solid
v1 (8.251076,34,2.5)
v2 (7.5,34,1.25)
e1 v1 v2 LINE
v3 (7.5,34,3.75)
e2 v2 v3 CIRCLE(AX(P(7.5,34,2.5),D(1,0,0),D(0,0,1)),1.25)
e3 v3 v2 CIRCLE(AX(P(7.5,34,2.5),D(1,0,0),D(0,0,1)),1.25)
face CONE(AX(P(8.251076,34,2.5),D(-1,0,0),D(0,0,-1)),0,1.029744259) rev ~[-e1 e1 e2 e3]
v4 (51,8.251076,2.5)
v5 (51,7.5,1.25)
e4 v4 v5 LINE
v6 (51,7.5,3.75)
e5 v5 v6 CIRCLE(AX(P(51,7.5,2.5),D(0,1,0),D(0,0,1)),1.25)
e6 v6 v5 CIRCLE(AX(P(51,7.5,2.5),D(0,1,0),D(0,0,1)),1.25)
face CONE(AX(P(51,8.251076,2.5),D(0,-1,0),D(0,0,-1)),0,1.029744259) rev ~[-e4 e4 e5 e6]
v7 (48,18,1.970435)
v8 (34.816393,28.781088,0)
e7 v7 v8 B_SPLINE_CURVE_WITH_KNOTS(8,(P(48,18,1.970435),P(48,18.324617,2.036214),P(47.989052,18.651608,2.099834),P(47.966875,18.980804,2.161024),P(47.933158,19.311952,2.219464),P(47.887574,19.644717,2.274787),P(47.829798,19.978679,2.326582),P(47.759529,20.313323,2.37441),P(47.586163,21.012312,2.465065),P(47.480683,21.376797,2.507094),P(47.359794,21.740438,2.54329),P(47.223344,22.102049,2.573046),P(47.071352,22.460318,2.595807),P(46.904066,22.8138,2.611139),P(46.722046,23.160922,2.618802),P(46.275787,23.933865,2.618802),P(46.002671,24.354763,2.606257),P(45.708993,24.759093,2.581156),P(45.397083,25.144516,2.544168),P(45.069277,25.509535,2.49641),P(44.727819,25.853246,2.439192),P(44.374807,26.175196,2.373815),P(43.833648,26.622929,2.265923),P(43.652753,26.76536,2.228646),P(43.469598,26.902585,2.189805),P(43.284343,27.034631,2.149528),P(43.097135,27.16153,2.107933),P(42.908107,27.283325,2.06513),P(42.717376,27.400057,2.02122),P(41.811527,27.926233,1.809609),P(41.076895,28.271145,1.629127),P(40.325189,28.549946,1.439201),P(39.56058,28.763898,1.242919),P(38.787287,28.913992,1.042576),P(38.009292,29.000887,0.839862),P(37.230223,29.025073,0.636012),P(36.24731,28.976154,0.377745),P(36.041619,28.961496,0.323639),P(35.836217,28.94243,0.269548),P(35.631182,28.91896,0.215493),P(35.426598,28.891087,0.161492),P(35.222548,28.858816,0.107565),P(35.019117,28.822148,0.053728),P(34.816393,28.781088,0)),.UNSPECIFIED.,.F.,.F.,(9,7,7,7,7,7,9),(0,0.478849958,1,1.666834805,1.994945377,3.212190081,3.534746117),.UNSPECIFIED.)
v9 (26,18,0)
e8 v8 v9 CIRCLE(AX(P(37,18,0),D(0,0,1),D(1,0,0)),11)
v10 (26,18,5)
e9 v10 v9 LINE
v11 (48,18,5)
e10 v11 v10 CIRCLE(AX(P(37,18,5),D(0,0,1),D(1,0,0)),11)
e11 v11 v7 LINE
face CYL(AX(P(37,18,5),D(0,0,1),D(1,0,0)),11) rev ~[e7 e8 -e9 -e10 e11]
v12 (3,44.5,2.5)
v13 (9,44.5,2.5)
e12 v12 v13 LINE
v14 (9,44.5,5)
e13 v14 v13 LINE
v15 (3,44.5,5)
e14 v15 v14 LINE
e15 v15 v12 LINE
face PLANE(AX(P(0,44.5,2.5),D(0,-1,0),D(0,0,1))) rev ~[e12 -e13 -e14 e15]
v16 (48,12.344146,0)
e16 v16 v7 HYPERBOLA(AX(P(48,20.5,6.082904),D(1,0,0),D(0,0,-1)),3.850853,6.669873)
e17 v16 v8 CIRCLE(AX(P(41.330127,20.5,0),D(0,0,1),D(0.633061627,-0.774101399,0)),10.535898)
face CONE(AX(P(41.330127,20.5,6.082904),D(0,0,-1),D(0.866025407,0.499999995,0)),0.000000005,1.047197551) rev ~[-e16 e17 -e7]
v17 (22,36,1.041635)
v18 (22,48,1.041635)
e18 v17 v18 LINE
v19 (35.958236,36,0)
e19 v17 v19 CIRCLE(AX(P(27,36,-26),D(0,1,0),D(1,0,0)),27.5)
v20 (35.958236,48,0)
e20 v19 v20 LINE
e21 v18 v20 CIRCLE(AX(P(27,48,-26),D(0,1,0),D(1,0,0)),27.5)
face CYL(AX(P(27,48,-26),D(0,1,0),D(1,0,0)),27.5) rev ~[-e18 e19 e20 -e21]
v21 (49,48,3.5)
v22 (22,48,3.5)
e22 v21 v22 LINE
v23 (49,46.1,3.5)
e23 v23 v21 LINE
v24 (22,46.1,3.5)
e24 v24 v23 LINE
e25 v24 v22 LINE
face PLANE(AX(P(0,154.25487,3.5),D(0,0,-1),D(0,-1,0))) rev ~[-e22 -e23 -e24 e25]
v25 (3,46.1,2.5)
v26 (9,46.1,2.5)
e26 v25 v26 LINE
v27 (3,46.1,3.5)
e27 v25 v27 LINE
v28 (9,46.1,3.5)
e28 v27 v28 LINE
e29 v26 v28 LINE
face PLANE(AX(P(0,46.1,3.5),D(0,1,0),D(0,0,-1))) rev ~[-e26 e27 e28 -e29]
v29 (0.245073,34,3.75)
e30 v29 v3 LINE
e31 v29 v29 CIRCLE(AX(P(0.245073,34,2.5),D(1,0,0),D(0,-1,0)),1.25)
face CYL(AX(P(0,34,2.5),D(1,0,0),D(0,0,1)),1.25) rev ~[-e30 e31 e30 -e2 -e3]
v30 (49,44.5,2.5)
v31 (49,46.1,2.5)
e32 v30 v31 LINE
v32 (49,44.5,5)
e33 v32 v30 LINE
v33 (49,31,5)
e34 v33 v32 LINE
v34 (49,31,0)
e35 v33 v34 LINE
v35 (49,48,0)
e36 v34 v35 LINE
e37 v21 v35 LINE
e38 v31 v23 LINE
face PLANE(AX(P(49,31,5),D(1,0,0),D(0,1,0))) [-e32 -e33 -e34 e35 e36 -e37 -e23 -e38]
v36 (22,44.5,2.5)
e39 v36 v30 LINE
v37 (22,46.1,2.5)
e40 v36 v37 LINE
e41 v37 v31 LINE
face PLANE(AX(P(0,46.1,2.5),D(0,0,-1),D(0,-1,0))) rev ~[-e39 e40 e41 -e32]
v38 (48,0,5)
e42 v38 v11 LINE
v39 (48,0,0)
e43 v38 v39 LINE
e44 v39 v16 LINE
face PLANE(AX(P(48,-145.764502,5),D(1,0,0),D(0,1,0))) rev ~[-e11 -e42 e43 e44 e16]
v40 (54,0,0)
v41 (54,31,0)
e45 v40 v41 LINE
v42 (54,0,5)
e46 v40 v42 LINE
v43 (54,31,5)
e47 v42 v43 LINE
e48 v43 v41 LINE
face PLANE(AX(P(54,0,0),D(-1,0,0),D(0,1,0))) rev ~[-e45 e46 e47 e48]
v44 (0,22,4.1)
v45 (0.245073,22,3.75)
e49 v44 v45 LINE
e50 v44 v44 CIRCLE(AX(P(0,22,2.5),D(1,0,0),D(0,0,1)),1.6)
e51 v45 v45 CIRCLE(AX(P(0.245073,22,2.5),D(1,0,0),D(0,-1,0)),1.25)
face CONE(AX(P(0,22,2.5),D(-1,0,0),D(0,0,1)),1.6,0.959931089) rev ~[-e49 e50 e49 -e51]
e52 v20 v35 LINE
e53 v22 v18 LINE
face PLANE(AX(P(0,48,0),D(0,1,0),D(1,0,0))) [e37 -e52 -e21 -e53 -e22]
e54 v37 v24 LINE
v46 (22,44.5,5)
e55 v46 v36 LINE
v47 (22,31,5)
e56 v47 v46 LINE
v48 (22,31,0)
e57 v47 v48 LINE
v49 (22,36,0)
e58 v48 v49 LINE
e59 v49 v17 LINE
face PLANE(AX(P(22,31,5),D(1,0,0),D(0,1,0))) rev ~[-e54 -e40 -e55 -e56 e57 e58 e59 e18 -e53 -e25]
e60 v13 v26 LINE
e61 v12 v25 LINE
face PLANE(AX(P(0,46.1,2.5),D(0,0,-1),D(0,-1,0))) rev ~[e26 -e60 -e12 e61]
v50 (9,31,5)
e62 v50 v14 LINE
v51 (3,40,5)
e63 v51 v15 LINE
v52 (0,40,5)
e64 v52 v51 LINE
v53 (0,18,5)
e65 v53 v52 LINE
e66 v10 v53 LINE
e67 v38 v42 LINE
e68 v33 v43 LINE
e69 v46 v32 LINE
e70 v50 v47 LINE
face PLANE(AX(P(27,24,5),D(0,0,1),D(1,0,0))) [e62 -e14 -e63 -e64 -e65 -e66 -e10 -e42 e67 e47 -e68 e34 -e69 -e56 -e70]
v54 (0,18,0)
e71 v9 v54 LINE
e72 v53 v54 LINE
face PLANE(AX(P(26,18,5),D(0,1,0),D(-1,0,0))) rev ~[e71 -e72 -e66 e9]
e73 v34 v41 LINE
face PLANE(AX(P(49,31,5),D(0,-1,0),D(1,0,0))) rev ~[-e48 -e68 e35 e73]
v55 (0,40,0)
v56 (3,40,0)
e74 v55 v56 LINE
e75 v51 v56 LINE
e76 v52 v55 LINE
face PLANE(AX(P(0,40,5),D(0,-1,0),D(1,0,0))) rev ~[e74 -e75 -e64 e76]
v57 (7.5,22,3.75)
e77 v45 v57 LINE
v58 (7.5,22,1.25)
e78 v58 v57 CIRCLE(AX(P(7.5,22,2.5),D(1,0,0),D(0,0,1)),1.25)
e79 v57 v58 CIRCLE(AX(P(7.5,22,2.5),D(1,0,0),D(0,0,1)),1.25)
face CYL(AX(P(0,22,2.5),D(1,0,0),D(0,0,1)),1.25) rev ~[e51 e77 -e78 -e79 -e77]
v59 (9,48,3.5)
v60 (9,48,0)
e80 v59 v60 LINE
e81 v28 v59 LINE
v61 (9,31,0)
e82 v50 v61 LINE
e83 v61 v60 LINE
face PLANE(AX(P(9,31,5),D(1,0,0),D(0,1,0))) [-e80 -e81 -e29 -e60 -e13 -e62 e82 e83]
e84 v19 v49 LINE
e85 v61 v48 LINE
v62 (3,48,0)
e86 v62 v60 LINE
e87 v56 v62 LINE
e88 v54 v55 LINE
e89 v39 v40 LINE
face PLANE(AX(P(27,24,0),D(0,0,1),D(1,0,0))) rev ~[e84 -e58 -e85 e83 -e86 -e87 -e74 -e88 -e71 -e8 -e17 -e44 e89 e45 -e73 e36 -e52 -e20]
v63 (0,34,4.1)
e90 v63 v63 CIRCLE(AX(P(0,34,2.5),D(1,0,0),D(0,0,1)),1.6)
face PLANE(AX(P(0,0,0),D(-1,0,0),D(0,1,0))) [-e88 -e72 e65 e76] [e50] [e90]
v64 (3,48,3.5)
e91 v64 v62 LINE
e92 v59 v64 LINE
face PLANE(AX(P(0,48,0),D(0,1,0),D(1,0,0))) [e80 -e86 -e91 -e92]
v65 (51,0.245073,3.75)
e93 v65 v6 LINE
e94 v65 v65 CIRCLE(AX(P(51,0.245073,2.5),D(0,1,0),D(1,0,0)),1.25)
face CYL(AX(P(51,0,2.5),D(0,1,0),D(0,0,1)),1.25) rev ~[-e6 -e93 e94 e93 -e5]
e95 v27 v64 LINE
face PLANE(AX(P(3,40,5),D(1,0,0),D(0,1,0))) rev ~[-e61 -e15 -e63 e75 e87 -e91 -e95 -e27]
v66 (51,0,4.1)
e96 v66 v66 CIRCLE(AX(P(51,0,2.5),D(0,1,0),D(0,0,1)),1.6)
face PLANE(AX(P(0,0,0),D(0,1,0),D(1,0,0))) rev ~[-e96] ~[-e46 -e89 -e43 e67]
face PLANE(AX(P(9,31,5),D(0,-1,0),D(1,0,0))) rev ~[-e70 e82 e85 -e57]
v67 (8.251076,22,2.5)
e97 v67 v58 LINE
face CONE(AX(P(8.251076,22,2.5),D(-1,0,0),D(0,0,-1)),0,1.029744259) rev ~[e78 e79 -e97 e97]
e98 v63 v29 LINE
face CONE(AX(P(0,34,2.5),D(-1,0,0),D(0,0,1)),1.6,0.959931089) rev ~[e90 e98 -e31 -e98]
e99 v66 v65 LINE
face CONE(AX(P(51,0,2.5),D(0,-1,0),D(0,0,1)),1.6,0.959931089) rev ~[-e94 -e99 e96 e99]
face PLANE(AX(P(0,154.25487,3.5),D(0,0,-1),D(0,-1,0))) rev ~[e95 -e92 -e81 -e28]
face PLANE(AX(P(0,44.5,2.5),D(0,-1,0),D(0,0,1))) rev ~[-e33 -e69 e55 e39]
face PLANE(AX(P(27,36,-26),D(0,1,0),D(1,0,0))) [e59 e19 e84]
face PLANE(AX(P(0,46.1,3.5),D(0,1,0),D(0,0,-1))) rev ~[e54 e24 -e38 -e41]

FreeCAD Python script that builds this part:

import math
import FreeCAD as App
import Part
import Sketcher
from FreeCAD import Vector
Q = App.Units.Quantity


def add_polygon(sketch, points):
    """Adds a closed chain of lines whose ends are joined by coincident constraints."""
    first, n = sketch.GeometryCount, len(points)
    for a, b in zip(points, points[1:] + points[:1]):
        sketch.addGeometry(Part.LineSegment(App.Vector(*a, 0), App.Vector(*b, 0)), False)
    for i in range(n):
        sketch.addConstraint(Sketcher.Constraint("Coincident", first + i, 2, first + (i + 1) % n, 1))

doc = App.newDocument("Part")
body = doc.addObject("PartDesign::Body", "Body")

# Sketch on XY plane
sketch1 = body.newObject("Sketcher::SketchObject", "Sketch")
sketch1.AttachmentSupport = (doc.getObject("XY_Plane"), [""])
sketch1.MapMode = "FlatFace"
add_polygon(sketch1, [(0, 48), (0, 0), (54, 0), (54, 48)])  # lines 0-3
sketch1.addConstraint([
    Sketcher.Constraint("Vertical", 0),
    Sketcher.Constraint("Horizontal", 1),
    Sketcher.Constraint("Vertical", 2),
    Sketcher.Constraint("Horizontal", 3),
    Sketcher.Constraint("Coincident", 0, 2, -1, 1),
    Sketcher.Constraint("DistanceX", 1, 1, 1, 2, 54.0),
    Sketcher.Constraint("DistanceY", 0, 2, 0, 1, 48.0),
])
pad1 = body.newObject("PartDesign::Pad", "Pad")
pad1.Profile = sketch1
pad1.Length = 5

# Sketch on XY plane
sketch2 = body.newObject("Sketcher::SketchObject", "Sketch001")
sketch2.AttachmentSupport = (doc.getObject("XY_Plane"), [""])
sketch2.MapMode = "FlatFace"
sketch2.AttachmentOffset = App.Placement(Vector(0, 0, 5), App.Rotation())
add_polygon(sketch2, [(0, 48), (0, 40), (3, 40), (3, 48)])  # lines 0-3
add_polygon(sketch2, [(9, 48), (9, 31), (22, 31), (22, 48)])  # lines 4-7
add_polygon(sketch2, [(49, 48), (49, 31), (54, 31), (54, 48)])  # lines 8-11
sketch2.addConstraint([
    Sketcher.Constraint("Vertical", 0),
    Sketcher.Constraint("Horizontal", 1),
    Sketcher.Constraint("Vertical", 2),
    Sketcher.Constraint("Horizontal", 3),
    Sketcher.Constraint("Vertical", 4),
    Sketcher.Constraint("Horizontal", 5),
    Sketcher.Constraint("Vertical", 6),
    Sketcher.Constraint("Horizontal", 7),
    Sketcher.Constraint("Vertical", 8),
    Sketcher.Constraint("Horizontal", 9),
    Sketcher.Constraint("Vertical", 10),
    Sketcher.Constraint("Horizontal", 11),
    Sketcher.Constraint("PointOnObject", 0, 2, -2),
    Sketcher.Constraint("Horizontal", 3, 2, 6, 2),
    Sketcher.Constraint("Horizontal", 5, 2, 8, 2),
    Sketcher.Constraint("Horizontal", 7, 2, 10, 2),
    Sketcher.Constraint("DistanceX", 1, 1, 1, 2, 3.0),
    Sketcher.Constraint("DistanceX", 5, 1, 5, 2, 13.0),
    Sketcher.Constraint("DistanceX", 9, 1, 9, 2, 5.0),
    Sketcher.Constraint("DistanceY", 0, 2, 0, 1, 8.0),
    Sketcher.Constraint("DistanceY", 4, 2, 4, 1, 17.0),
    Sketcher.Constraint("DistanceY", -1, 1, 0, 2, 40.0),
    Sketcher.Constraint("DistanceX", -1, 1, 4, 2, 9.0),
    Sketcher.Constraint("DistanceX", -1, 1, 8, 2, 49.0),
])
pocket1 = body.newObject("PartDesign::Pocket", "Pocket")
pocket1.Profile = sketch2
pocket1.Type = "ThroughAll"

# Sketch on YZ plane
sketch3 = body.newObject("Sketcher::SketchObject", "Sketch002")
sketch3.AttachmentSupport = (doc.getObject("YZ_Plane"), [""])
sketch3.MapMode = "FlatFace"
add_polygon(sketch3, [(154.3, 3.5), (46.1, 3.5), (46.1, 2.5), (44.5, 2.5), (44.5, 111.3), (193.4, 262.9), (303.1, 155.1)])  # lines 0-6
sketch3.addConstraint([
    Sketcher.Constraint("Horizontal", 0),
    Sketcher.Constraint("Vertical", 1),
    Sketcher.Constraint("Horizontal", 2),
    Sketcher.Constraint("Vertical", 3),
    Sketcher.Constraint("Perpendicular", 4, 5),
    Sketcher.Constraint("Perpendicular", 5, 6),
    Sketcher.Constraint("Equal", 4, 6),
    Sketcher.Constraint("DistanceY", 1, 2, 1, 1, 1.0),
    Sketcher.Constraint("DistanceX", 2, 2, 2, 1, 1.6),
    Sketcher.Constraint("DistanceX", -1, 1, 0, 2, 46.1),
    Sketcher.Constraint("DistanceY", -1, 1, 0, 2, 3.5),
    Sketcher.Constraint("DistanceX", 0, 2, 0, 1, 108.15487),
    Sketcher.Constraint("DistanceY", 3, 1, 3, 2, 108.75487),
    Sketcher.Constraint("Distance", 4, 212.50974),
])
pocket2 = body.newObject("PartDesign::Pocket", "Pocket001")
pocket2.Profile = sketch3
pocket2.Type = "ThroughAll"
pocket2.Reversed = True

# Sketch on XY plane
sketch4 = body.newObject("Sketcher::SketchObject", "Sketch003")
sketch4.AttachmentSupport = (doc.getObject("XY_Plane"), [""])
sketch4.MapMode = "FlatFace"
sketch4.AttachmentOffset = App.Placement(Vector(0, 0, 5), App.Rotation())
sketch4.addGeometry([
    Part.LineSegment(Vector(48, -146, 0), Vector(48, 18, 0)),  # 0
    Part.ArcOfCircle(Part.Circle(Vector(37, 18, 0), Vector(0, 0, 1), 11), math.radians(0), math.radians(180)),  # 1
    Part.LineSegment(Vector(26, 18, 0), Vector(-146, 18, 0)),  # 2
    Part.LineSegment(Vector(-146, 18, 0), Vector(-334, -205, 0)),  # 3
    Part.LineSegment(Vector(-334, -205, 0), Vector(-140, -368, 0)),  # 4
    Part.LineSegment(Vector(-140, -368, 0), Vector(48, -146, 0)),  # 5
], False)
sketch4.addConstraint([
    Sketcher.Constraint("Tangent", 0, 2, 1, 1),
    Sketcher.Constraint("Coincident", 1, 2, 2, 1),
    Sketcher.Constraint("Coincident", 2, 2, 3, 1),
    Sketcher.Constraint("Coincident", 3, 2, 4, 1),
    Sketcher.Constraint("Coincident", 4, 2, 5, 1),
    Sketcher.Constraint("Coincident", 5, 2, 0, 1),
    Sketcher.Constraint("Vertical", 0),
    Sketcher.Constraint("Horizontal", 2),
    Sketcher.Constraint("Perpendicular", 3, 4),
    Sketcher.Constraint("Perpendicular", 4, 5),
    Sketcher.Constraint("Horizontal", 0, 2, 1, 2),
    Sketcher.Constraint("Equal", 3, 5),
    Sketcher.Constraint("Radius", 1, 11.0),
    Sketcher.Constraint("DistanceX", -1, 1, 1, 3, 37.0),
    Sketcher.Constraint("DistanceY", -1, 1, 1, 3, 18.0),
    Sketcher.Constraint("DistanceX", 2, 2, 2, 1, 171.764502),
    Sketcher.Constraint("DistanceY", 0, 1, 0, 2, 163.764502),
    Sketcher.Constraint("DistanceY", 3, 2, -1, 1, 204.65691),
])
pocket3 = body.newObject("PartDesign::Pocket", "Pocket002")
pocket3.Profile = sketch4
pocket3.Type = "ThroughAll"

# Sketch on XZ plane
sketch5 = body.newObject("Sketcher::SketchObject", "Sketch004")
sketch5.AttachmentSupport = (doc.getObject("XZ_Plane"), [""])
sketch5.MapMode = "FlatFace"
sketch5.AttachmentOffset = App.Placement(Vector(0, 0, -48), App.Rotation())
sketch5.addGeometry(Part.Circle(Vector(27, -26, 0), Vector(0, 0, 1), 28), False)
sketch5.addConstraint([
    Sketcher.Constraint("Diameter", 0, 55.0),
    Sketcher.Constraint("DistanceX", -1, 1, 0, 3, 27.0),
    Sketcher.Constraint("DistanceY", 0, 3, -1, 1, 26.0),
])
pocket4 = body.newObject("PartDesign::Pocket", "Pocket003")
pocket4.Profile = sketch5
pocket4.Length = 12
pocket4.Reversed = True

# Sketch on YZ plane
sketch6 = body.newObject("Sketcher::SketchObject", "Sketch005")
sketch6.AttachmentSupport = (doc.getObject("YZ_Plane"), [""])
sketch6.MapMode = "FlatFace"
sketch6.addGeometry([
    Part.Circle(Vector(22, 2.5, 0), Vector(0, 0, 1), 1.2),
    Part.Circle(Vector(34, 2.5, 0), Vector(0, 0, 1), 1.2),
], False)
sketch6.addConstraint([
    Sketcher.Constraint("Equal", 0, 1),
    Sketcher.Constraint("Horizontal", 0, 3, 1, 3),
    Sketcher.Constraint("Diameter", 0, 2.5),
    Sketcher.Constraint("DistanceX", -1, 1, 0, 3, 22.0),
    Sketcher.Constraint("DistanceX", -1, 1, 1, 3, 34.0),
    Sketcher.Constraint("DistanceY", -1, 1, 0, 3, 2.5),
])
doc.recompute()
hole = body.newObject("PartDesign::Hole", "Hole")
hole.Profile = sketch6
hole.ThreadType = "None"
hole.Diameter = 2.5
hole.DepthType = "Dimension"
hole.Depth = 7.5
hole.DrillPoint = "Angled"
hole.DrillPointAngle = 118
hole.HoleCutType = "Countersink"
hole.HoleCutDiameter = 3.2
hole.HoleCutCountersinkAngle = 110
hole.Reversed = True

# Sketch on XZ plane
sketch7 = body.newObject("Sketcher::SketchObject", "Sketch006")
sketch7.AttachmentSupport = (doc.getObject("XZ_Plane"), [""])
sketch7.MapMode = "FlatFace"
sketch7.addGeometry(Part.Circle(Vector(51, 2.5, 0), Vector(0, 0, 1), 1.2), False)
sketch7.addConstraint([
    Sketcher.Constraint("Diameter", 0, 2.5),
    Sketcher.Constraint("DistanceX", -1, 1, 0, 3, 51.0),
    Sketcher.Constraint("DistanceY", -1, 1, 0, 3, 2.5),
])
doc.recompute()
hole2 = body.newObject("PartDesign::Hole", "Hole001")
hole2.Profile = sketch7
hole2.ThreadType = "None"
hole2.Diameter = 2.5
hole2.DepthType = "Dimension"
hole2.Depth = 7.5
hole2.DrillPoint = "Angled"
hole2.DrillPointAngle = 118
hole2.HoleCutType = "Countersink"
hole2.HoleCutDiameter = 3.2
hole2.HoleCutCountersinkAngle = 110

# Sketch on an angled plane
sketch8 = body.newObject("Sketcher::SketchObject", "Sketch007")
sketch8.Placement = App.Placement(Vector(1.455771, -2.52147, 0), App.Rotation(Vector(0, 0, -1), Vector(-0.866025404, -0.5, 0), Vector(-0.5, 0.866025404, 0), "ZXY"))
add_polygon(sketch8, [(-6, -46), (2, -60), (2, -46)])  # lines 0-2
sketch8.addGeometry(Part.LineSegment(Vector(-6, -46, 0), Vector(2, -46, 0)), True)  # axis
sketch8.addConstraint([
    Sketcher.Constraint("Vertical", 1),
    Sketcher.Constraint("Horizontal", 2),
    Sketcher.Constraint("Horizontal", 3),
    Sketcher.Constraint("Coincident", 3, 1, 2, 2),
    Sketcher.Constraint("Vertical", 0, 2, 3, 2),
    Sketcher.Constraint("DistanceY", 1, 1, 1, 2, 14.0),
    Sketcher.Constraint("Angle", 0, Q("-60 deg")),
    Sketcher.Constraint("DistanceX", -1, 1, 0, 2, 2.0),
    Sketcher.Constraint("DistanceY", 0, 2, -1, 1, 60.04294),
])
groove = body.newObject("PartDesign::Groove", "Groove")
groove.Profile = sketch8
groove.ReferenceAxis = (sketch8, ["Axis0"])
groove.Angle = 360

doc.recompute()
